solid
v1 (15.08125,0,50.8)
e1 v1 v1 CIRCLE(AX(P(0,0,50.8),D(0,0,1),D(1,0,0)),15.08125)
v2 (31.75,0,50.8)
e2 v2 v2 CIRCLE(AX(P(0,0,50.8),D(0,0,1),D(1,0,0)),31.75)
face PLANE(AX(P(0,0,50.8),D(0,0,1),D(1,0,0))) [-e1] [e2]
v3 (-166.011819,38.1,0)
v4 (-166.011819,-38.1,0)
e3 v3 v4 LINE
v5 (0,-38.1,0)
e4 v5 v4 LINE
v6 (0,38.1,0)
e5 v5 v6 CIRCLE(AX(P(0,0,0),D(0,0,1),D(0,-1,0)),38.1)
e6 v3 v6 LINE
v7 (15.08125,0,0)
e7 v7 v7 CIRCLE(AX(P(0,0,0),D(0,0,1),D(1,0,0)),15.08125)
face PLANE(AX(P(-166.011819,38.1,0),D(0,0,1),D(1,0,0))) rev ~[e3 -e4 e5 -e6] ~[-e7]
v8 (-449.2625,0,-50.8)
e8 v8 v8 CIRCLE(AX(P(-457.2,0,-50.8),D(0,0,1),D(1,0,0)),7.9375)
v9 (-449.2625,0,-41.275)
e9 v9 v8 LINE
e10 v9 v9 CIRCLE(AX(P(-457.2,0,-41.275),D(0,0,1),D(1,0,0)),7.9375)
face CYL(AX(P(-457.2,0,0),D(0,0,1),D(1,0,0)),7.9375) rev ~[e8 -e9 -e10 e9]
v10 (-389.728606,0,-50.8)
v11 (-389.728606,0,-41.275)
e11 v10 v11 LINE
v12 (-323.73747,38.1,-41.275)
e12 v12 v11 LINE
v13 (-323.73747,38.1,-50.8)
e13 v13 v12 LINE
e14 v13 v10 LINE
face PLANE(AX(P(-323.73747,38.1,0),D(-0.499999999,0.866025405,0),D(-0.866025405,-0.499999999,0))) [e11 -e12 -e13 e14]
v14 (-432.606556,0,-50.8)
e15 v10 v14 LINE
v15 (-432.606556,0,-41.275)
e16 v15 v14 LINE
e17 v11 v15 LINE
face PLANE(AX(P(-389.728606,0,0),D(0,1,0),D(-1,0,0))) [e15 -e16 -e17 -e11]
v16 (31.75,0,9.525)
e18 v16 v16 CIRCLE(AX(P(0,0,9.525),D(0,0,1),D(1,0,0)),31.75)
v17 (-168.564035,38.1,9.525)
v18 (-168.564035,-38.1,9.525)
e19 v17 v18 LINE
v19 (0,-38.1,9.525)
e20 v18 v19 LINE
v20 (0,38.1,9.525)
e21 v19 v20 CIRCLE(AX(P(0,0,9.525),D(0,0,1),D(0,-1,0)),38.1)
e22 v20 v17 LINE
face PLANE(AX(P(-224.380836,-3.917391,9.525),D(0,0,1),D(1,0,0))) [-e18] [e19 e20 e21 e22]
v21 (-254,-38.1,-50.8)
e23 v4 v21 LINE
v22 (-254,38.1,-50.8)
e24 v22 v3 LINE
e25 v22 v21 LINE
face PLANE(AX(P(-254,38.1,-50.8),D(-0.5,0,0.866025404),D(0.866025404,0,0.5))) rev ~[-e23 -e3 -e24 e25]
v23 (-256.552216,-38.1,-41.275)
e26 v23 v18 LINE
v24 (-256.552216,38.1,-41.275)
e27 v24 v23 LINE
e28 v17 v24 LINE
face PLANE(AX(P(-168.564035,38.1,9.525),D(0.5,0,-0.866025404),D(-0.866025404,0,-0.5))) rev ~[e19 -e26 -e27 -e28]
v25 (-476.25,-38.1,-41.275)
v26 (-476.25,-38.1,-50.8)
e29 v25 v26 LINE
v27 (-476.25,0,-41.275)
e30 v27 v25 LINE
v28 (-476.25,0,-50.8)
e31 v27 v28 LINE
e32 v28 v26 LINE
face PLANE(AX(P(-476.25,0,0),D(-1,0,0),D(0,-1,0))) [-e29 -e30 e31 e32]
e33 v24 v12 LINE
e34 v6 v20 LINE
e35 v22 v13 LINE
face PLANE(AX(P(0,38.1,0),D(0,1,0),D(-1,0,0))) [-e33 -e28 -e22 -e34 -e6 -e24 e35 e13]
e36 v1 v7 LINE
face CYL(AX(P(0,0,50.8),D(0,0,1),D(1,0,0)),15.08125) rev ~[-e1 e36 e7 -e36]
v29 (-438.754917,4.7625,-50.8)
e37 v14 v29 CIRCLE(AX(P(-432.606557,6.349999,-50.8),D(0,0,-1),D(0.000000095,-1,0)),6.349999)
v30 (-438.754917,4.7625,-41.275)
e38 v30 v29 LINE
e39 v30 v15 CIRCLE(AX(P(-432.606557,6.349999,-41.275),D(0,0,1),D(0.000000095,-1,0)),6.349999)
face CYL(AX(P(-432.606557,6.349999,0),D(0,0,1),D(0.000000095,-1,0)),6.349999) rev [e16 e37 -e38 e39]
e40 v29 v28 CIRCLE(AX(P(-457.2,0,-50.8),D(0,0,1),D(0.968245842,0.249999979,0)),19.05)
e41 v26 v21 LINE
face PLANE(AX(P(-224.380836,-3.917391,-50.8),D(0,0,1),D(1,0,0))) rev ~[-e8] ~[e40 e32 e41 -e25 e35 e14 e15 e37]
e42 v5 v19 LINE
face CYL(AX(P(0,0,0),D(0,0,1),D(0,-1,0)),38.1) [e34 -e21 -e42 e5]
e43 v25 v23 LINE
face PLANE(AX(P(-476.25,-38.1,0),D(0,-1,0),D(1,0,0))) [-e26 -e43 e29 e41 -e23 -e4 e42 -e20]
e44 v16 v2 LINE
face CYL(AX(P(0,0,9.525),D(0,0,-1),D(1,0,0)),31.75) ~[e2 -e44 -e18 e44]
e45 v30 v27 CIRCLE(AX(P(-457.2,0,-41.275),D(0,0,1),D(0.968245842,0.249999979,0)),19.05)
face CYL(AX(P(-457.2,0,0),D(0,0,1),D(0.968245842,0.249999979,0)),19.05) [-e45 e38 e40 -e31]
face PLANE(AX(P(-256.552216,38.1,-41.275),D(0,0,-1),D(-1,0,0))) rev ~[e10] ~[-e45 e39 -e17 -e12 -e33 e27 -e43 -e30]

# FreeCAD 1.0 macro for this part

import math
import FreeCAD as App
import Part
import Sketcher
Q = App.Units.Quantity

doc = App.newDocument("Part")
params = doc.addObject("Spreadsheet::Sheet", "Params")
for row, (alias, value) in enumerate([
    ("sketch1_radius", "1.5 in"),
    ("sketch1_radius2", "0.25 in"),
    ("sketch1_radius3", "0.75 in"),
    ("sketch1_length", "3 in"),
    ("sketch1_diameter", "0.625 in"),
    ("pad1_length", "0.375 in"),
    ("pad1_length2", "2 in"),
    ("sketch2_diameter", "2.5 in"),
    ("pad2_length", "1.625 in"),
    ("sketch3_diameter", "1.1875 in"),
    ("sketch4_width", "14 in"),
    ("sketch4_height", "2 in"),
    ("sketch4_length", "4 in"),
], start=1):
    params.set(f"A{row}", alias)
    params.set(f"B{row}", "=" + value)
    params.setAlias(f"B{row}", alias)

body = doc.addObject("PartDesign::Body", "Body")

# Sketch on XY plane
sketch1 = body.newObject("Sketcher::SketchObject", "Sketch")
sketch1.AttachmentSupport = (doc.getObject("XY_Plane"), [""])
sketch1.MapMode = "FlatFace"
sketch1.addGeometry(Part.LineSegment(App.Vector(-476.25, -38.1, 0), App.Vector(0, -38.1, 0)), False)
sketch1.addGeometry(Part.ArcOfCircle(Part.Circle(App.Vector(0, 0, 0), App.Vector(0, 0, 1), 38.1), math.radians(-90), math.radians(90)), False)
sketch1.addGeometry(Part.LineSegment(App.Vector(0, 38.1, 0), App.Vector(-323.73747, 38.1, 0)), False)
sketch1.addGeometry(Part.LineSegment(App.Vector(-323.73747, 38.1, 0), App.Vector(-389.728606, 0, 0)), False)
sketch1.addGeometry(Part.LineSegment(App.Vector(-389.728606, 0, 0), App.Vector(-432.606556, 0, 0)), False)
sketch1.addGeometry(Part.ArcOfCircle(Part.Circle(App.Vector(-432.606557, 6.349999, 0), App.Vector(0, 0, 1), 6.349999), math.radians(-165.522494), math.radians(-89.999995)), False)
sketch1.addGeometry(Part.ArcOfCircle(Part.Circle(App.Vector(-457.2, 0, 0), App.Vector(0, 0, 1), 19.05), math.radians(14.477511), math.radians(180.000001)), False)
sketch1.addGeometry(Part.LineSegment(App.Vector(-476.25, 0, 0), App.Vector(-476.25, -38.1, 0)), False)
sketch1.addGeometry(Part.Circle(App.Vector(-457.2, 0, 0), App.Vector(0, 0, 1), 7.9375), False)
sketch1.addConstraint(Sketcher.Constraint("Tangent", 0, 2, 1, 1))
sketch1.addConstraint(Sketcher.Constraint("Tangent", 1, 2, 2, 1))
sketch1.addConstraint(Sketcher.Constraint("Coincident", 2, 2, 3, 1))
sketch1.addConstraint(Sketcher.Constraint("Coincident", 3, 2, 4, 1))
sketch1.addConstraint(Sketcher.Constraint("Tangent", 4, 2, 5, 2))
sketch1.addConstraint(Sketcher.Constraint("Tangent", 5, 1, 6, 1))
sketch1.addConstraint(Sketcher.Constraint("Tangent", 6, 2, 7, 1))
sketch1.addConstraint(Sketcher.Constraint("Coincident", 7, 2, 0, 1))
sketch1.addConstraint(Sketcher.Constraint("Horizontal", 0))
sketch1.addConstraint(Sketcher.Constraint("Horizontal", 2))
sketch1.addConstraint(Sketcher.Constraint("Horizontal", 4))
sketch1.addConstraint(Sketcher.Constraint("Vertical", 7))
sketch1.addConstraint(Sketcher.Constraint("Coincident", 1, 3, -1, 1))
sketch1.addConstraint(Sketcher.Constraint("Coincident", 8, 3, 6, 3))
sketch1.addConstraint(Sketcher.Constraint("PointOnObject", 6, 3, -1))
sketch1.addConstraint(Sketcher.Constraint("PointOnObject", 3, 2, -1))
sketch1.addConstraint(Sketcher.Constraint("Radius", 1, Q("1.5 in")))
sketch1.addConstraint(Sketcher.Constraint("Radius", 5, Q("0.25 in")))
sketch1.addConstraint(Sketcher.Constraint("Radius", 6, Q("0.75 in")))
sketch1.addConstraint(Sketcher.Constraint("Distance", 3, Q("3 in")))
sketch1.addConstraint(Sketcher.Constraint("Diameter", 8, Q("0.625 in")))
sketch1.addConstraint(Sketcher.Constraint("DistanceX", 6, 3, -1, 1, Q("18 in")))
sketch1.addConstraint(Sketcher.Constraint("DistanceX", 2, 2, 2, 1, 323.73747))
sketch1.setExpression("Constraints[16]", "Params.sketch1_radius")
sketch1.setExpression("Constraints[17]", "Params.sketch1_radius2")
sketch1.setExpression("Constraints[18]", "Params.sketch1_radius3")
sketch1.setExpression("Constraints[19]", "Params.sketch1_length")
sketch1.setExpression("Constraints[20]", "Params.sketch1_diameter")
pad1 = body.newObject("PartDesign::Pad", "Pad")
pad1.Profile = sketch1
pad1.Type = "TwoLengths"
pad1.setExpression("Length", "Params.pad1_length")
pad1.setExpression("Length2", "Params.pad1_length2")

# Sketch on XY plane
sketch2 = body.newObject("Sketcher::SketchObject", "Sketch001")
sketch2.AttachmentSupport = (doc.getObject("XY_Plane"), [""])
sketch2.MapMode = "FlatFace"
sketch2.AttachmentOffset = App.Placement(App.Vector(0, 0, 0.375 * 25.4), App.Rotation())
sketch2.addGeometry(Part.Circle(App.Vector(0, 0, 0), App.Vector(0, 0, 1), 31.75), False)
sketch2.addConstraint(Sketcher.Constraint("Coincident", 0, 3, -1, 1))
sketch2.addConstraint(Sketcher.Constraint("Diameter", 0, Q("2.5 in")))
sketch2.setExpression("Constraints[1]", "Params.sketch2_diameter")
pad2 = body.newObject("PartDesign::Pad", "Pad001")
pad2.Profile = sketch2
pad2.setExpression("Length", "Params.pad2_length")

# Sketch on XY plane
sketch3 = body.newObject("Sketcher::SketchObject", "Sketch002")
sketch3.AttachmentSupport = (doc.getObject("XY_Plane"), [""])
sketch3.MapMode = "FlatFace"
sketch3.AttachmentOffset = App.Placement(App.Vector(0, 0, 2 * 25.4), App.Rotation())
sketch3.addGeometry(Part.Circle(App.Vector(0, 0, 0), App.Vector(0, 0, 1), 15.08125), False)
sketch3.addConstraint(Sketcher.Constraint("Coincident", 0, 3, -1, 1))
sketch3.addConstraint(Sketcher.Constraint("Diameter", 0, Q("1.1875 in")))
sketch3.setExpression("Constraints[1]", "Params.sketch3_diameter")
pocket1 = body.newObject("PartDesign::Pocket", "Pocket")
pocket1.Profile = sketch3
pocket1.Type = "ThroughAll"

# Sketch on XZ plane
sketch4 = body.newObject("Sketcher::SketchObject", "Sketch003")
sketch4.AttachmentSupport = (doc.getObject("XZ_Plane"), [""])
sketch4.MapMode = "FlatFace"
sketch4.AttachmentOffset = App.Placement(App.Vector(0, 0, -1.5 * 25.4), App.Rotation())
sketch4.addGeometry(Part.LineSegment(App.Vector(101.6, -50.8, 0), App.Vector(-254, -50.8, 0)), False)
sketch4.addGeometry(Part.LineSegment(App.Vector(-254, -50.8, 0), App.Vector(-166.011819, 0, 0)), False)
sketch4.addGeometry(Part.LineSegment(App.Vector(-166.011819, 0, 0), App.Vector(101.6, 0, 0)), False)
sketch4.addGeometry(Part.LineSegment(App.Vector(101.6, 0, 0), App.Vector(101.6, -50.8, 0)), False)
sketch4.addGeometry(Part.LineSegment(App.Vector(-524.164035, 9.525, 0), App.Vector(-168.564035, 9.525, 0)), False)
sketch4.addGeometry(Part.LineSegment(App.Vector(-168.564035, 9.525, 0), App.Vector(-256.552216, -41.275, 0)), False)
sketch4.addGeometry(Part.LineSegment(App.Vector(-256.552216, -41.275, 0), App.Vector(-524.164035, -41.275, 0)), False)
sketch4.addGeometry(Part.LineSegment(App.Vector(-524.164035, -41.275, 0), App.Vector(-524.164035, 9.525, 0)), False)
sketch4.addConstraint(Sketcher.Constraint("Coincident", 0, 2, 1, 1))
sketch4.addConstraint(Sketcher.Constraint("Coincident", 1, 2, 2, 1))
sketch4.addConstraint(Sketcher.Constraint("Coincident", 2, 2, 3, 1))
sketch4.addConstraint(Sketcher.Constraint("Coincident", 3, 2, 0, 1))
sketch4.addConstraint(Sketcher.Constraint("Coincident", 4, 2, 5, 1))
sketch4.addConstraint(Sketcher.Constraint("Coincident", 5, 2, 6, 1))
sketch4.addConstraint(Sketcher.Constraint("Coincident", 6, 2, 7, 1))
sketch4.addConstraint(Sketcher.Constraint("Coincident", 7, 2, 4, 1))
sketch4.addConstraint(Sketcher.Constraint("Horizontal", 0))
sketch4.addConstraint(Sketcher.Constraint("Horizontal", 2))
sketch4.addConstraint(Sketcher.Constraint("Vertical", 3))
sketch4.addConstraint(Sketcher.Constraint("Horizontal", 4))
sketch4.addConstraint(Sketcher.Constraint("Horizontal", 6))
sketch4.addConstraint(Sketcher.Constraint("Vertical", 7))
sketch4.addConstraint(Sketcher.Constraint("PointOnObject", 1, 2, -1))
sketch4.addConstraint(Sketcher.Constraint("Parallel", 1, 5))
sketch4.addConstraint(Sketcher.Constraint("Equal", 0, 4))
sketch4.addConstraint(Sketcher.Constraint("Equal", 2, 6))
sketch4.addConstraint(Sketcher.Constraint("DistanceX", 0, 2, 0, 1, Q("14 in")))
sketch4.addConstraint(Sketcher.Constraint("DistanceY", 3, 2, 3, 1, Q("2 in")))
sketch4.addConstraint(Sketcher.Constraint("Distance", 1, Q("4 in")))
sketch4.addConstraint(Sketcher.Constraint("DistanceX", 0, 2, -1, 1, Q("10 in")))
sketch4.addConstraint(Sketcher.Constraint("DistanceY", -1, 1, 4, 2, Q("0.375 in")))
sketch4.addConstraint(Sketcher.Constraint("DistanceX", 4, 2, -1, 1, 168.564035))
sketch4.setExpression("Constraints[18]", "Params.sketch4_width")
sketch4.setExpression("Constraints[19]", "Params.sketch4_height")
sketch4.setExpression("Constraints[20]", "Params.sketch4_length")
pocket2 = body.newObject("PartDesign::Pocket", "Pocket001")
pocket2.Profile = sketch4
pocket2.Type = "ThroughAll"
pocket2.Reversed = True

doc.recompute()
